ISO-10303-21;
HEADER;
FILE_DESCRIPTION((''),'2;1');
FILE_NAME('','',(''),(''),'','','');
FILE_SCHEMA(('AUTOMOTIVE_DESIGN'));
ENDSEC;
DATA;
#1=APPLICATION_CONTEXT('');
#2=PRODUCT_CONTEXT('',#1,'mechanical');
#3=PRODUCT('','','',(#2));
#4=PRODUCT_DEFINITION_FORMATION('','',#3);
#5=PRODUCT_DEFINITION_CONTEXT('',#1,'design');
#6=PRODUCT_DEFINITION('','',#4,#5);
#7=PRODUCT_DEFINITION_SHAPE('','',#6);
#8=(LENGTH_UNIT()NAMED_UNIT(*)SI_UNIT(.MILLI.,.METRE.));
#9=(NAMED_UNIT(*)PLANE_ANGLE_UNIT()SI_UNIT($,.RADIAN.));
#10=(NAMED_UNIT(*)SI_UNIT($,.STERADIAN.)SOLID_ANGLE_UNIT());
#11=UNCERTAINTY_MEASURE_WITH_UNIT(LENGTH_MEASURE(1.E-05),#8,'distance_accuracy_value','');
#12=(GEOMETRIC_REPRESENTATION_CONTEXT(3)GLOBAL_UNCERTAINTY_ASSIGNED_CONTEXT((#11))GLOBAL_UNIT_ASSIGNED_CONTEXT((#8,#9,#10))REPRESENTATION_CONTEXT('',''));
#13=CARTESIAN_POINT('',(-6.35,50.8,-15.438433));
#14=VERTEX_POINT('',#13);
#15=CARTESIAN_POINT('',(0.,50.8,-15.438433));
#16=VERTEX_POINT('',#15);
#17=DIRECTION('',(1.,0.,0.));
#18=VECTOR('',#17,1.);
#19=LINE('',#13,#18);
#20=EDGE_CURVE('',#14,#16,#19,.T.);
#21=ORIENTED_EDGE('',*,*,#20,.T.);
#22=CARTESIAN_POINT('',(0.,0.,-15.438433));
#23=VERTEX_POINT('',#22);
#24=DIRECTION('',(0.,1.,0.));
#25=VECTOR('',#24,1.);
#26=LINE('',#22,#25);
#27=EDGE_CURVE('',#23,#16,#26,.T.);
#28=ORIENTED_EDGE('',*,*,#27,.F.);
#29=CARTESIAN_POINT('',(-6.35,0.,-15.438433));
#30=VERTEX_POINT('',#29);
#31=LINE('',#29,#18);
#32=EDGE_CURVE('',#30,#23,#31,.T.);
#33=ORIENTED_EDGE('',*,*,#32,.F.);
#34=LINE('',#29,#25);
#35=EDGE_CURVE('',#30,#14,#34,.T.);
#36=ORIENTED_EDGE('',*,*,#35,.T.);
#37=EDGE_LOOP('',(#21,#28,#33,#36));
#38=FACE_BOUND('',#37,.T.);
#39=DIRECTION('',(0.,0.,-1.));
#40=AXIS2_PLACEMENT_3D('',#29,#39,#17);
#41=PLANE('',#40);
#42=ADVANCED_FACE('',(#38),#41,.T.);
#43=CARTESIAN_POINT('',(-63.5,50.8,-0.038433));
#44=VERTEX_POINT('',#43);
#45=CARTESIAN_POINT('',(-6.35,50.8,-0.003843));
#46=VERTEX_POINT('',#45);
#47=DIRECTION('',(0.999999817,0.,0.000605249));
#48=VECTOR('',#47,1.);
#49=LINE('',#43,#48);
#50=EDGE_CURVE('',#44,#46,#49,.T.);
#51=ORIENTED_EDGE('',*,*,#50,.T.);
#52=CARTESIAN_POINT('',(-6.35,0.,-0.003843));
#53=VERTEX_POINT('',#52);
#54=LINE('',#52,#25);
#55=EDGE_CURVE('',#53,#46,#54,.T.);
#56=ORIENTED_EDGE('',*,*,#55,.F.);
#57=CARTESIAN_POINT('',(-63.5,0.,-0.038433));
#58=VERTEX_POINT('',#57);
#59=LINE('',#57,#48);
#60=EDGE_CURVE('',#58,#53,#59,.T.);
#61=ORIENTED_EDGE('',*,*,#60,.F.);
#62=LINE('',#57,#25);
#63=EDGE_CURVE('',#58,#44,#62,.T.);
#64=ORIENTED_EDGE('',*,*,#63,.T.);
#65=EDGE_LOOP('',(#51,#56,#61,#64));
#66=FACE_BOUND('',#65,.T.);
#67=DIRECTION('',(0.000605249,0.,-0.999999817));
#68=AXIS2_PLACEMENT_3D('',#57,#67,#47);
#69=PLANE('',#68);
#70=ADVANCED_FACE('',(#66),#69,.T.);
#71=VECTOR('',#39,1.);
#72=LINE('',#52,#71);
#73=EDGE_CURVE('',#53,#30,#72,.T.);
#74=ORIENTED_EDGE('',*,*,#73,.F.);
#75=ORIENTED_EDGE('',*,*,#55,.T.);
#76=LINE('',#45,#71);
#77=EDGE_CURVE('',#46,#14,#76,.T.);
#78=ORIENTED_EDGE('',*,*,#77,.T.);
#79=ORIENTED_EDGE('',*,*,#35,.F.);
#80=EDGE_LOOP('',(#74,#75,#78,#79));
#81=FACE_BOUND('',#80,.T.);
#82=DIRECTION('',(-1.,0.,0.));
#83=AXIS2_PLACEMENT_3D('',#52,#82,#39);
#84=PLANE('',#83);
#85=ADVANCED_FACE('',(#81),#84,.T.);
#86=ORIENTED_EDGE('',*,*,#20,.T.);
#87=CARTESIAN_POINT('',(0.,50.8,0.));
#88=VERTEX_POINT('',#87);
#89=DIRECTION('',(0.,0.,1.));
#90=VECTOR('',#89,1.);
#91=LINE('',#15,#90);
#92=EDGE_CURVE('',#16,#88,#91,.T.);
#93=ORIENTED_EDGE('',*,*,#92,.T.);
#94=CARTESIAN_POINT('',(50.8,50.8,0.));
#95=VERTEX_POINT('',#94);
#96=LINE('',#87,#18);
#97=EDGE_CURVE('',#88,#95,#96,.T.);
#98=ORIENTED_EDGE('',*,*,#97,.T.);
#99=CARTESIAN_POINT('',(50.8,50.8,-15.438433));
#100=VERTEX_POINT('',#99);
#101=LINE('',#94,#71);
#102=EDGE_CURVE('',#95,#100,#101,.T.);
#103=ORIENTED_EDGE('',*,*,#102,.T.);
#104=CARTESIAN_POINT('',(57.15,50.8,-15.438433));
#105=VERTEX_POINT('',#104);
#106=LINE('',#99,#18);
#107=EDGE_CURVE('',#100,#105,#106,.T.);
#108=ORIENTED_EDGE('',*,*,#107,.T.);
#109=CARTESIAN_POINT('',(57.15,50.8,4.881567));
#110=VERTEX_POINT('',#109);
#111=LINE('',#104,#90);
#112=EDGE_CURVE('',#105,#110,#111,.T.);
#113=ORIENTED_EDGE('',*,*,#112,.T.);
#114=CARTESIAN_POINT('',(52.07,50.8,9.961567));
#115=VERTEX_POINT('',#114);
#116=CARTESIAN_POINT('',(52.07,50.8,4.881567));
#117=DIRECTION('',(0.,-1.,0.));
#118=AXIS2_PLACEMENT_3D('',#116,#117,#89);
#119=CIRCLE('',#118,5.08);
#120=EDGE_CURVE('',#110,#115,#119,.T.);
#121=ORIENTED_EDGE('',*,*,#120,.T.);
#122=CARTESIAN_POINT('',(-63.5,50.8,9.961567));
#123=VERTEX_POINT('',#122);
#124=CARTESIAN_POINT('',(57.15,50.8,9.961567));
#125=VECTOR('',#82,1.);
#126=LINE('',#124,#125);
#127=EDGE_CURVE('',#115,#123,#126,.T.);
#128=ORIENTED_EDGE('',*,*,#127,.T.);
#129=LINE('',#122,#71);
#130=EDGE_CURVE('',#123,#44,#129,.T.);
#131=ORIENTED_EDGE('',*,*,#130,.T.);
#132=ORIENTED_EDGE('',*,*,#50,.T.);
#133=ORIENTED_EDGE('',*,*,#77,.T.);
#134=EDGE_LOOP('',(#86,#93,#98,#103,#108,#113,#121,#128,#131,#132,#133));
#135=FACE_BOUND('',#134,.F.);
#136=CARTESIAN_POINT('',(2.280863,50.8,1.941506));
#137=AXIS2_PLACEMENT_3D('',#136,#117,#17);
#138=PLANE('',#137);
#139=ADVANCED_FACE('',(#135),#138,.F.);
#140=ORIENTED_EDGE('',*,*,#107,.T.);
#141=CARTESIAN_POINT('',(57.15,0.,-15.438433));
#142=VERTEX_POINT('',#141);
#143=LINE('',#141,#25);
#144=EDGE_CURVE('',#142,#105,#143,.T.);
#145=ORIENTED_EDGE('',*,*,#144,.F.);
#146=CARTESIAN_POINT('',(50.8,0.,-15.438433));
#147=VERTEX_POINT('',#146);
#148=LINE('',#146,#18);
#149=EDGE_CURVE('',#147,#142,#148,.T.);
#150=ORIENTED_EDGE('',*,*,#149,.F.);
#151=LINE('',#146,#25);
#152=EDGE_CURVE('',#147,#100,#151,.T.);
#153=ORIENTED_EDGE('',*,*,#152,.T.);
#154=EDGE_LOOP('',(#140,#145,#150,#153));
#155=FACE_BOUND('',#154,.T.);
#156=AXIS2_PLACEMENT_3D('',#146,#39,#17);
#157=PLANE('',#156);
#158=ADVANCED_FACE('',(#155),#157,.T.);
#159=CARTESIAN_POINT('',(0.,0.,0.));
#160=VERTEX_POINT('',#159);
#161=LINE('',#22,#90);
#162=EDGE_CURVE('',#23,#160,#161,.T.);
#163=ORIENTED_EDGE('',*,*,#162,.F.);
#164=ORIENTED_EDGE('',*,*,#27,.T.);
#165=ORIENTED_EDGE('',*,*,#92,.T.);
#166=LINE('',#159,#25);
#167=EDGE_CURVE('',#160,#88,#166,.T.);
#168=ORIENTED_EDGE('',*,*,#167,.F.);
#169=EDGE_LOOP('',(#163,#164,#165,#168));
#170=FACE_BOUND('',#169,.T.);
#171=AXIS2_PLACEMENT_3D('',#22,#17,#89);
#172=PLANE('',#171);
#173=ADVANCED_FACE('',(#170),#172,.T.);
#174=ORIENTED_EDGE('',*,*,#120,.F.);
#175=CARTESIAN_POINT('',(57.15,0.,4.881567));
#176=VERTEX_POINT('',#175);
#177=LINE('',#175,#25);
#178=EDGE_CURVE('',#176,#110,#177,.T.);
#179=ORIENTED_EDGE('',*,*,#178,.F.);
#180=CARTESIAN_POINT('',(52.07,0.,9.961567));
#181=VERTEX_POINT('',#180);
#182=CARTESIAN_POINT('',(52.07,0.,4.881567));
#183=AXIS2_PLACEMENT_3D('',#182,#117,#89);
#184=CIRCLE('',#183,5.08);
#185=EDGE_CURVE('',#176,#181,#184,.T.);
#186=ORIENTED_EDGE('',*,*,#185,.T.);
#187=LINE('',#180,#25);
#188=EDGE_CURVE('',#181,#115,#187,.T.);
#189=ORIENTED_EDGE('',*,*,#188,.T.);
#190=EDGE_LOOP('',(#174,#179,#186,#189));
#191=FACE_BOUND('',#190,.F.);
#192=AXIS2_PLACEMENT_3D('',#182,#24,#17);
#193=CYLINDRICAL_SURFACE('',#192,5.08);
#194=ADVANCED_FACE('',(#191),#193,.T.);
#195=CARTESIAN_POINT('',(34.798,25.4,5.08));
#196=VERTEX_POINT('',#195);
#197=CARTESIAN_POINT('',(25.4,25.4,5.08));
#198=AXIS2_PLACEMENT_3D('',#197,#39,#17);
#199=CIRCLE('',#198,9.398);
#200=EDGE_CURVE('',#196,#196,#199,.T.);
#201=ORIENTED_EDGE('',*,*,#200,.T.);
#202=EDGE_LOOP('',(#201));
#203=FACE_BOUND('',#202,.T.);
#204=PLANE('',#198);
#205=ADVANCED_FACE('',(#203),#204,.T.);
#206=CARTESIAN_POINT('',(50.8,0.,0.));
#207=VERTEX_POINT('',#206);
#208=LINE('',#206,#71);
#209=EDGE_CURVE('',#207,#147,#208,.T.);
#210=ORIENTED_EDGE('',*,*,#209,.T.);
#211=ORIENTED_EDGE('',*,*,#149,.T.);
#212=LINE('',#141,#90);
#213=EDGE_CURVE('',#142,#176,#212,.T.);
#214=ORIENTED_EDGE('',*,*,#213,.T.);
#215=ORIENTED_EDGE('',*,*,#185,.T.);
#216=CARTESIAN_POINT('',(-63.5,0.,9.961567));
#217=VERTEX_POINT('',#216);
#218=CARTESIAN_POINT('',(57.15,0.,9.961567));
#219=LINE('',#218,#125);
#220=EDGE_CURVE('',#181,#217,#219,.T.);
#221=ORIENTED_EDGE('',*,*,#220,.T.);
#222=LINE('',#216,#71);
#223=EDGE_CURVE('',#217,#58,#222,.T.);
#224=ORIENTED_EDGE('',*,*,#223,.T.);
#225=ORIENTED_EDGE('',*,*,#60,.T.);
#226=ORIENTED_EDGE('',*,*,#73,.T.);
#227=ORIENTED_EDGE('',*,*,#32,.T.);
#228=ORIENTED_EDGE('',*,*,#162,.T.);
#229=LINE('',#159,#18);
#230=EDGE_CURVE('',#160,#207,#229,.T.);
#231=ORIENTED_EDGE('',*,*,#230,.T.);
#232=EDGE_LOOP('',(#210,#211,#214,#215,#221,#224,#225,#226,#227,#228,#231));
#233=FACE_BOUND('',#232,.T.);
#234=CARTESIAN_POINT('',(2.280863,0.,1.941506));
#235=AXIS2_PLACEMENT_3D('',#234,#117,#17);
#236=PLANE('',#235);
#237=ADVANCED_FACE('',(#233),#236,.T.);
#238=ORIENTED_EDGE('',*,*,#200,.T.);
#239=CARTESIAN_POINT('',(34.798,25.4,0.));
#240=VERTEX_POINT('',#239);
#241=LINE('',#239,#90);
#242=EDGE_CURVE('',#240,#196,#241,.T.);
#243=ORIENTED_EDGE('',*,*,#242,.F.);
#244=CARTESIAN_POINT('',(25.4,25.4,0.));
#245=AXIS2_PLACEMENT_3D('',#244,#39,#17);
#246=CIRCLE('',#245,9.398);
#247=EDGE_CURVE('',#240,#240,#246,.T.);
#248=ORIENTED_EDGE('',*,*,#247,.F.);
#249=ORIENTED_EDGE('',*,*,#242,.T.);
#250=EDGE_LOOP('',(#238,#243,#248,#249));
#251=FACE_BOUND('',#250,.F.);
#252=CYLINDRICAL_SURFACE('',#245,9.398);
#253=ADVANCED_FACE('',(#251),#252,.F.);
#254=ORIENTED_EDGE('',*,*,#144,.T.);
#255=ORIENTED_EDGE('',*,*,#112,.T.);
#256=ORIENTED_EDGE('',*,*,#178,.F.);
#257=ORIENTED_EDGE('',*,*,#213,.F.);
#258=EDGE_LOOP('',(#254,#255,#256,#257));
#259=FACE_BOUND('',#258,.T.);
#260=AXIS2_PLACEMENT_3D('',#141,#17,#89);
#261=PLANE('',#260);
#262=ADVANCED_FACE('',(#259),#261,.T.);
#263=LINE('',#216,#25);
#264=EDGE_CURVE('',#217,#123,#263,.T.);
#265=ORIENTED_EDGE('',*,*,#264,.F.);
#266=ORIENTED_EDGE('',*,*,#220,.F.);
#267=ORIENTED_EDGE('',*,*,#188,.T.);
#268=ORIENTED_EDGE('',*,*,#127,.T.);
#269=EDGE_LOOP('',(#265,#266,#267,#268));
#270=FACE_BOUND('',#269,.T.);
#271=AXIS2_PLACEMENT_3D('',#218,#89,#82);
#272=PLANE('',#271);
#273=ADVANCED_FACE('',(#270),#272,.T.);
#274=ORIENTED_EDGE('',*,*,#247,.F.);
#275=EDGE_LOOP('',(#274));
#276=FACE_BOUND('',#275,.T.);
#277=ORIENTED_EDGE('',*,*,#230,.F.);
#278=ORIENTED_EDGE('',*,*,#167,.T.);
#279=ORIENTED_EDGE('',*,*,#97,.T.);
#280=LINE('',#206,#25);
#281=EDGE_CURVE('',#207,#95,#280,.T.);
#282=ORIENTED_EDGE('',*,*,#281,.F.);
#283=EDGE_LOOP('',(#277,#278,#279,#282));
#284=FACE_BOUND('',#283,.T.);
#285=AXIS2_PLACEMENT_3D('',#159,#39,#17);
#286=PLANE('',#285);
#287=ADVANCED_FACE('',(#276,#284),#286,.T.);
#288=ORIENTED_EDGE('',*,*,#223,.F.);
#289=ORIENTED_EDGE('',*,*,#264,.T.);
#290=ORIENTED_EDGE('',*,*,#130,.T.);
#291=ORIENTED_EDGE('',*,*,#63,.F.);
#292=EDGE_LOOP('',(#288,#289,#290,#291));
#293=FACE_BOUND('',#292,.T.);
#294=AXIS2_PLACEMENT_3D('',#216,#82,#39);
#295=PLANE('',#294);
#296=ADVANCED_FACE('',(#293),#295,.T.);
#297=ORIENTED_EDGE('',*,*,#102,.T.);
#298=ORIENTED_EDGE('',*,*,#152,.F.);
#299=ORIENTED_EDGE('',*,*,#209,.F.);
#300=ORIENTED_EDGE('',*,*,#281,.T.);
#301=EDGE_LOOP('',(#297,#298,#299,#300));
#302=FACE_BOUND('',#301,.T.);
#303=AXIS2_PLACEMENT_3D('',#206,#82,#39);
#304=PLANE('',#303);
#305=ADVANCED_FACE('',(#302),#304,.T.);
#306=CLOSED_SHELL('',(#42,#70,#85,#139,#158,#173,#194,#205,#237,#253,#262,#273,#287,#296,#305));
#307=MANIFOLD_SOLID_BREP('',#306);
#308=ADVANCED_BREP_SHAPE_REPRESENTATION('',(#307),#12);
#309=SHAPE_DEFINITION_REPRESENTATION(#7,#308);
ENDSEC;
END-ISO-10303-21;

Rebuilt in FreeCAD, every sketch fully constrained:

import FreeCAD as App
import Part
import Sketcher
from FreeCAD import Vector
Q = App.Units.Quantity


def edges_at(feature, points):
    """Names of the edges that pass closest to the given points."""
    edges = feature.Shape.Edges
    near = lambda p: min(range(len(edges)), key=lambda i: edges[i].distToShape(Part.Vertex(*p))[0])
    return sorted({f"Edge{near(p) + 1}" for p in points})


def add_polygon(sketch, points):
    """Adds a closed chain of lines whose ends are joined by coincident constraints."""
    first, n = sketch.GeometryCount, len(points)
    for a, b in zip(points, points[1:] + points[:1]):
        sketch.addGeometry(Part.LineSegment(App.Vector(*a, 0), App.Vector(*b, 0)), False)
    for i in range(n):
        sketch.addConstraint(Sketcher.Constraint("Coincident", first + i, 2, first + (i + 1) % n, 1))

doc = App.newDocument("Part")
body = doc.addObject("PartDesign::Body", "Body")

sketch1 = body.newObject("Sketcher::SketchObject", "Sketch")
sketch1.AttachmentSupport = (doc.getObject("XZ_Plane"), [""])
sketch1.MapMode = "FlatFace"
add_polygon(sketch1, [(0, -15), (0, 0), (51, 0), (51, -15), (57, -15), (57, 10), (-64, 10), (-64, 0), (-6, 0), (-6, -15)])
sketch1.addConstraint([
    Sketcher.Constraint("Vertical", 0),
    Sketcher.Constraint("Horizontal", 1),
    Sketcher.Constraint("Vertical", 2),
    Sketcher.Constraint("Horizontal", 3),
    Sketcher.Constraint("Vertical", 4),
    Sketcher.Constraint("Horizontal", 5),
    Sketcher.Constraint("Vertical", 6),
    Sketcher.Constraint("Vertical", 8),
    Sketcher.Constraint("Horizontal", 9),
    Sketcher.Constraint("Coincident", 0, 2, -1, 1),
    Sketcher.Constraint("Horizontal", 3, 2, 8, 2),
    Sketcher.Constraint("Equal", 3, 9),
    Sketcher.Constraint("DistanceX", 1, 1, 1, 2, Q("2 in")),
    Sketcher.Constraint("DistanceY", 4, 1, 4, 2, Q("1 in")),
    Sketcher.Constraint("DistanceX", 3, 1, 3, 2, Q("0.25 in")),
    Sketcher.Constraint("DistanceX", 5, 2, 5, 1, Q("4.75 in")),
    Sketcher.Constraint("DistanceY", 6, 2, 6, 1, 10.0),
    Sketcher.Constraint("DistanceY", 8, 2, 8, 1, 15.43459),
    Sketcher.Constraint("DistanceY", 0, 1, 0, 2, 15.438433),
])
pad1 = body.newObject("PartDesign::Pad", "Pad")
pad1.Profile = sketch1
pad1.Length = Q("2 in")
pad1.Reversed = True
doc.recompute()

fillet = body.newObject("PartDesign::Fillet", "Fillet")
fillet.Base = (pad1, edges_at(pad1, [(57.15, 25.4, 9.962)]))
fillet.Radius = Q("0.2 in")

sketch2 = body.newObject("Sketcher::SketchObject", "Sketch001")
sketch2.AttachmentSupport = (doc.getObject("XY_Plane"), [""])
sketch2.MapMode = "FlatFace"
sketch2.addGeometry(Part.Circle(Vector(25, 25, 0), Vector(0, 0, 1), 9), False)
sketch2.addConstraint([
    Sketcher.Constraint("Diameter", 0, Q("0.74 in")),
    Sketcher.Constraint("DistanceX", -1, 1, 0, 3, Q("1 in")),
    Sketcher.Constraint("DistanceY", -1, 1, 0, 3, Q("1 in")),
])
pocket1 = body.newObject("PartDesign::Pocket", "Pocket")
pocket1.Profile = sketch2
pocket1.Length = Q("0.2 in")
pocket1.Reversed = True

doc.recompute()
